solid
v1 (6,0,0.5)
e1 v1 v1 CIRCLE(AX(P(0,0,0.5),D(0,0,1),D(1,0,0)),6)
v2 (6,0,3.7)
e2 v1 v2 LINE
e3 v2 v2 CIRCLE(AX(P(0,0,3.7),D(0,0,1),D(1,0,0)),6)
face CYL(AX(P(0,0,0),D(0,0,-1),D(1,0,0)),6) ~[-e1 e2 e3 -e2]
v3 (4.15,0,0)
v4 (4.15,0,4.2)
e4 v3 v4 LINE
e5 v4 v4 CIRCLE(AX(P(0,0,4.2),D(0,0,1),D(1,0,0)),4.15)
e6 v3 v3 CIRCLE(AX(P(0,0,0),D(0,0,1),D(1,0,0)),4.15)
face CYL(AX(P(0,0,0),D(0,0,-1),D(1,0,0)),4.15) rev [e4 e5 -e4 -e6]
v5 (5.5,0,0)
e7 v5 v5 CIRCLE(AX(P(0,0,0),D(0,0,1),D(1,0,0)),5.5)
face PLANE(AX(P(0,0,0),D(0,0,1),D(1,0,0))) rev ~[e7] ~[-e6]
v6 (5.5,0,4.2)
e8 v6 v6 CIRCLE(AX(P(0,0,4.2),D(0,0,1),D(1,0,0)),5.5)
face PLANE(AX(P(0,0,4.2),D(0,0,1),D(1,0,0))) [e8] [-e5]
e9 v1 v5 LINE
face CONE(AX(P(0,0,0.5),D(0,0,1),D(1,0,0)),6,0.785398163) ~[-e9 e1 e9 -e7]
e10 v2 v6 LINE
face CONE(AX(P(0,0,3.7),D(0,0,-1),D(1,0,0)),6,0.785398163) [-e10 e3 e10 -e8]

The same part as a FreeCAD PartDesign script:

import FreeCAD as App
import Part
import Sketcher
from FreeCAD import Vector
Q = App.Units.Quantity


def edges_at(feature, points):
    """Names of the edges that pass closest to the given points."""
    edges = feature.Shape.Edges
    near = lambda p: min(range(len(edges)), key=lambda i: edges[i].distToShape(Part.Vertex(*p))[0])
    return sorted({f"Edge{near(p) + 1}" for p in points})

doc = App.newDocument("Part")
params = doc.addObject("Spreadsheet::Sheet", "Params")
for row, (alias, value) in enumerate([
    ("sketch1_diameter", "12 mm"),
    ("sketch1_diameter2", "8.3 mm"),
    ("pad1_length", "4.2 mm"),
    ("chamfer_size", "0.5 mm"),
], start=1):
    params.set(f"A{row}", alias)
    params.set(f"B{row}", "=" + value)
    params.setAlias(f"B{row}", alias)

body = doc.addObject("PartDesign::Body", "Body")

sketch1 = body.newObject("Sketcher::SketchObject", "Sketch")
sketch1.AttachmentSupport = (doc.getObject("XY_Plane"), [""])
sketch1.MapMode = "FlatFace"
sketch1.addGeometry([
    Part.Circle(Vector(0, 0, 0), Vector(0, 0, 1), 6),
    Part.Circle(Vector(0, 0, 0), Vector(0, 0, 1), 4.15),
], False)
sketch1.addConstraint([
    Sketcher.Constraint("Coincident", 0, 3, -1, 1),
    Sketcher.Constraint("Coincident", 1, 3, -1, 1),
    Sketcher.Constraint("Diameter", 0, Q("12 mm")),
    Sketcher.Constraint("Diameter", 1, Q("8.3 mm")),
])
sketch1.setExpression("Constraints[2]", "Params.sketch1_diameter")
sketch1.setExpression("Constraints[3]", "Params.sketch1_diameter2")
pad1 = body.newObject("PartDesign::Pad", "Pad")
pad1.Profile = sketch1
pad1.setExpression("Length", "Params.pad1_length")
doc.recompute()

chamfer = body.newObject("PartDesign::Chamfer", "Chamfer")
chamfer.Base = (pad1, edges_at(pad1, [(-6, 0, 4.2), (-6, 0, 0)]))
chamfer.setExpression("Size", "Params.chamfer_size")

doc.recompute()
